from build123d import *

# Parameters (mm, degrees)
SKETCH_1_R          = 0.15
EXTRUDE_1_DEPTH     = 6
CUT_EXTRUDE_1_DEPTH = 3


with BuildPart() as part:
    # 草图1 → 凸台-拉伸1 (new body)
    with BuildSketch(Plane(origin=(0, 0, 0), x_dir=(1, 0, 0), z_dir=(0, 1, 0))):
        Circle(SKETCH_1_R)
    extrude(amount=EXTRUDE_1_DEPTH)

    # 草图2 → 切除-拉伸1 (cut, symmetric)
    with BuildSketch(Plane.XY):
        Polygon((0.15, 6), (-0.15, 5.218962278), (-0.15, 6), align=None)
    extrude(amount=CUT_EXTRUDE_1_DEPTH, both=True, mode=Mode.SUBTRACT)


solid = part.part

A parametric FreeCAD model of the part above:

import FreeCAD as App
import Part
import Sketcher

V = App.Vector


def add_polygon(sketch, points):
    """Adds a closed chain of lines whose ends are joined by coincident constraints."""
    first, n = sketch.GeometryCount, len(points)
    for a, b in zip(points, points[1:] + points[:1]):
        sketch.addGeometry(Part.LineSegment(App.Vector(*a, 0), App.Vector(*b, 0)), False)
    for i in range(n):
        sketch.addConstraint(Sketcher.Constraint("Coincident", first + i, 2, first + (i + 1) % n, 1))

doc = App.newDocument("Part")
body = doc.addObject("PartDesign::Body", "Body")

sketch1 = body.newObject("Sketcher::SketchObject", "Sketch")
sketch1.AttachmentSupport = (doc.getObject("XZ_Plane"), [""])
sketch1.MapMode = "FlatFace"
sketch1.addGeometry(Part.Circle(V(0, 0, 0), V(0, 0, 1), 0.15), False)
sketch1.addConstraint([
    Sketcher.Constraint("Coincident", 0, 3, -1, 1),
    Sketcher.Constraint("Diameter", 0, 0.3),
])
pad1 = body.newObject("PartDesign::Pad", "Pad")
pad1.Profile = sketch1
pad1.Length = 6
pad1.Reversed = True

sketch2 = body.newObject("Sketcher::SketchObject", "Sketch001")
sketch2.AttachmentSupport = (doc.getObject("XY_Plane"), [""])
sketch2.MapMode = "FlatFace"
add_polygon(sketch2, [(-0.15, 5.218962), (0.15, 6), (-0.15, 6)])
sketch2.addConstraint([
    Sketcher.Constraint("Horizontal", 1),
    Sketcher.Constraint("Vertical", 2),
    Sketcher.Constraint("DistanceX", 1, 2, 1, 1, 0.3),
    Sketcher.Constraint("DistanceY", -1, 1, 0, 2, 6.0),
    Sketcher.Constraint("DistanceX", -1, 1, 0, 2, 0.15),
    Sketcher.Constraint("Distance", 0, 0.836672),
])
pocket1 = body.newObject("PartDesign::Pocket", "Pocket")
pocket1.Profile = sketch2
pocket1.Length = 6
pocket1.Midplane = True

doc.recompute()
